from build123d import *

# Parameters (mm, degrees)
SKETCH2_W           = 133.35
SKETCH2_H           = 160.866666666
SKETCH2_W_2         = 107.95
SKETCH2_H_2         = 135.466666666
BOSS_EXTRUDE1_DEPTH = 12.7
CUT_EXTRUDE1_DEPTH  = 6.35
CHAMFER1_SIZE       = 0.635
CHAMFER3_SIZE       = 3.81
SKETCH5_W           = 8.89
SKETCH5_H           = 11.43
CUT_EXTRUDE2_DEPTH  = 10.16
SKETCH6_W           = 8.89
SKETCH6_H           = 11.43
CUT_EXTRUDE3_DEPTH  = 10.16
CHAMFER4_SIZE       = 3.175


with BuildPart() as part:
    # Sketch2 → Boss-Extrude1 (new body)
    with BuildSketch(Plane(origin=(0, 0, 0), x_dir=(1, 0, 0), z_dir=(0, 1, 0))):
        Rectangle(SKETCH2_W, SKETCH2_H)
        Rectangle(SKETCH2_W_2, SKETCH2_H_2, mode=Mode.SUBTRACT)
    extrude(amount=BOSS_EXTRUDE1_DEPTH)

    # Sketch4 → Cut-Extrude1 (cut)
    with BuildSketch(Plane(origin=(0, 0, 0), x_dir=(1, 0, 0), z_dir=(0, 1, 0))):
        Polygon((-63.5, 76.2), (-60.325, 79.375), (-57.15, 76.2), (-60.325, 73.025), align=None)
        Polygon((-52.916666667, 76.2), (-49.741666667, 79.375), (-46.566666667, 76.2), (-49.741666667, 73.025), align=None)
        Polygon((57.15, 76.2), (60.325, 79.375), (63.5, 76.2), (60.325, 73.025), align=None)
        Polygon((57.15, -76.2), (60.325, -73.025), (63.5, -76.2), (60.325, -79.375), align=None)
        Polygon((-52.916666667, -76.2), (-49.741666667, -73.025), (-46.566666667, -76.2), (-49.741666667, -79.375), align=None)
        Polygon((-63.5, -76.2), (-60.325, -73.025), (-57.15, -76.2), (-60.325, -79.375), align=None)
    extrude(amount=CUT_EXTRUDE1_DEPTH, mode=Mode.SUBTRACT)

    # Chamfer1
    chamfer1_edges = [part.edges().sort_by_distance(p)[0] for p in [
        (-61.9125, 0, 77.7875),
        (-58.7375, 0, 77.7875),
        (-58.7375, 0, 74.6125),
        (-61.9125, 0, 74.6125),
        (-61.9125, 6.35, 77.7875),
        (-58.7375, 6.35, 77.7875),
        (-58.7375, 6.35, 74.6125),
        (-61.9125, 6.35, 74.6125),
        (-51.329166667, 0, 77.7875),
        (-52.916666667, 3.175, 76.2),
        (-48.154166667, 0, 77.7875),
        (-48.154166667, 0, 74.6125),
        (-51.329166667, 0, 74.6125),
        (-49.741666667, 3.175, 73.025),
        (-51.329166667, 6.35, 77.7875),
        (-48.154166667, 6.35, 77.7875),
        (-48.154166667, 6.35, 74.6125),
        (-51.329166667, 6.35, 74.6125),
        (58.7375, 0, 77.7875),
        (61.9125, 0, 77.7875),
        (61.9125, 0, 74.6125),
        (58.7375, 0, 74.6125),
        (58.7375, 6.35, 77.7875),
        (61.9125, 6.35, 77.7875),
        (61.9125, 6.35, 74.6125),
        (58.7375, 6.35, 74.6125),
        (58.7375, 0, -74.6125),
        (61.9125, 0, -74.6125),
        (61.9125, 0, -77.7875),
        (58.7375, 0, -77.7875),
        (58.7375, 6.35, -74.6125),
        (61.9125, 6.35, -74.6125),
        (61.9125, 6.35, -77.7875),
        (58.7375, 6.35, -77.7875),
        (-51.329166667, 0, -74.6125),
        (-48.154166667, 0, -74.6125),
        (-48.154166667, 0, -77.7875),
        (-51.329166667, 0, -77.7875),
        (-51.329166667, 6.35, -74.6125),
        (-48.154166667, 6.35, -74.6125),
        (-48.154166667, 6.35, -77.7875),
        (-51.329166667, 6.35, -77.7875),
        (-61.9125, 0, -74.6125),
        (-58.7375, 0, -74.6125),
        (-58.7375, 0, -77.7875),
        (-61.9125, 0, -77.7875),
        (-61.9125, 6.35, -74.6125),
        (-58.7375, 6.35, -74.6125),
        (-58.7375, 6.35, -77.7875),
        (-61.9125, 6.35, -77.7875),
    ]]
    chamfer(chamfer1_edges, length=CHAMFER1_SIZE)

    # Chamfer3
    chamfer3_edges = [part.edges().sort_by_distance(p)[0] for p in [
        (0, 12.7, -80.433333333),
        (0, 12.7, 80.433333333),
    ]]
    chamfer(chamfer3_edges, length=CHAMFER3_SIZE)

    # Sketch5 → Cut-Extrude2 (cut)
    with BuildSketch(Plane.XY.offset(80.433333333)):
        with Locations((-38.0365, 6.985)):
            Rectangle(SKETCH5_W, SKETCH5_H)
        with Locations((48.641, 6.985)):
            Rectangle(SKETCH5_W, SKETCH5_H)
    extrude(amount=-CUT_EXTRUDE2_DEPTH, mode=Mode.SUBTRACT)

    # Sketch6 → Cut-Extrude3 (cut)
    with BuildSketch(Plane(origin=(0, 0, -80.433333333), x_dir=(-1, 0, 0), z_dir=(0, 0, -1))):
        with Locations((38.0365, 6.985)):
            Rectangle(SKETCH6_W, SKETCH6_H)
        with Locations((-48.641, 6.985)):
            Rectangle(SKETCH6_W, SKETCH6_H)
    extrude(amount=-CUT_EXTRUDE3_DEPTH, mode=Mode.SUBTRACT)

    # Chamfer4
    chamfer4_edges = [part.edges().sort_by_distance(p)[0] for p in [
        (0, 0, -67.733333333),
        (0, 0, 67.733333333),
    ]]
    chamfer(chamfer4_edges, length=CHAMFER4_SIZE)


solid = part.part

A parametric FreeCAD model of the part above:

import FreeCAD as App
import Part
import Sketcher

V = App.Vector
Q = App.Units.Quantity


def edges_at(feature, points):
    """Names of the edges that pass closest to the given points."""
    edges = feature.Shape.Edges
    near = lambda p: min(range(len(edges)), key=lambda i: edges[i].distToShape(Part.Vertex(*p))[0])
    return sorted({f"Edge{near(p) + 1}" for p in points})

doc = App.newDocument("Part")
body = doc.addObject("PartDesign::Body", "Body")

# Sketch on XZ plane
sketch1 = body.newObject("Sketcher::SketchObject", "Sketch")
sketch1.AttachmentSupport = (doc.getObject("XZ_Plane"), [""])
sketch1.MapMode = "FlatFace"
sketch1.addGeometry(Part.LineSegment(V(-67, -80, 0), V(-67, 80, 0)), False)
sketch1.addGeometry(Part.LineSegment(V(-67, 80, 0), V(67, 80, 0)), False)
sketch1.addGeometry(Part.LineSegment(V(67, 80, 0), V(67, -80, 0)), False)
sketch1.addGeometry(Part.LineSegment(V(67, -80, 0), V(-67, -80, 0)), False)
sketch1.addGeometry(Part.LineSegment(V(54, 68, 0), V(-54, 68, 0)), False)
sketch1.addGeometry(Part.LineSegment(V(-54, 68, 0), V(-54, -68, 0)), False)
sketch1.addGeometry(Part.LineSegment(V(-54, -68, 0), V(54, -68, 0)), False)
sketch1.addGeometry(Part.LineSegment(V(54, -68, 0), V(54, 68, 0)), False)
sketch1.addConstraint(Sketcher.Constraint("Coincident", 0, 2, 1, 1))
sketch1.addConstraint(Sketcher.Constraint("Coincident", 1, 2, 2, 1))
sketch1.addConstraint(Sketcher.Constraint("Coincident", 2, 2, 3, 1))
sketch1.addConstraint(Sketcher.Constraint("Coincident", 3, 2, 0, 1))
sketch1.addConstraint(Sketcher.Constraint("Coincident", 4, 2, 5, 1))
sketch1.addConstraint(Sketcher.Constraint("Coincident", 5, 2, 6, 1))
sketch1.addConstraint(Sketcher.Constraint("Coincident", 6, 2, 7, 1))
sketch1.addConstraint(Sketcher.Constraint("Coincident", 7, 2, 4, 1))
sketch1.addConstraint(Sketcher.Constraint("Vertical", 0))
sketch1.addConstraint(Sketcher.Constraint("Horizontal", 1))
sketch1.addConstraint(Sketcher.Constraint("Vertical", 2))
sketch1.addConstraint(Sketcher.Constraint("Horizontal", 3))
sketch1.addConstraint(Sketcher.Constraint("Horizontal", 4))
sketch1.addConstraint(Sketcher.Constraint("Vertical", 5))
sketch1.addConstraint(Sketcher.Constraint("Horizontal", 6))
sketch1.addConstraint(Sketcher.Constraint("Vertical", 7))
sketch1.addConstraint(Sketcher.Constraint("Symmetric", 0, 2, 2, 2, -1, 1))
sketch1.addConstraint(Sketcher.Constraint("Symmetric", 4, 2, 6, 2, -1, 1))
sketch1.addConstraint(Sketcher.Constraint("DistanceX", 1, 1, 1, 2, Q("5.25 in")))
sketch1.addConstraint(Sketcher.Constraint("DistanceX", 4, 2, 4, 1, Q("4.25 in")))
sketch1.addConstraint(Sketcher.Constraint("DistanceY", 4, 2, 0, 2, Q("0.5 in")))
sketch1.addConstraint(Sketcher.Constraint("DistanceY", 0, 1, 0, 2, 160.866667))
pad1 = body.newObject("PartDesign::Pad", "Pad")
pad1.Profile = sketch1
pad1.Length = Q("0.5 in")
pad1.Reversed = True

# Sketch on XZ plane
sketch2 = body.newObject("Sketcher::SketchObject", "Sketch001")
sketch2.AttachmentSupport = (doc.getObject("XZ_Plane"), [""])
sketch2.MapMode = "FlatFace"
sketch2.addGeometry(Part.LineSegment(V(-60.3, -79.4, 0), V(-63.5, -76.2, 0)), False)
sketch2.addGeometry(Part.LineSegment(V(-63.5, -76.2, 0), V(-60.3, -73, 0)), False)
sketch2.addGeometry(Part.LineSegment(V(-60.3, -73, 0), V(-57.1, -76.2, 0)), False)
sketch2.addGeometry(Part.LineSegment(V(-57.1, -76.2, 0), V(-60.3, -79.4, 0)), False)
sketch2.addGeometry(Part.LineSegment(V(-49.7, -79.4, 0), V(-52.9, -76.2, 0)), False)
sketch2.addGeometry(Part.LineSegment(V(-52.9, -76.2, 0), V(-49.7, -73, 0)), False)
sketch2.addGeometry(Part.LineSegment(V(-49.7, -73, 0), V(-46.6, -76.2, 0)), False)
sketch2.addGeometry(Part.LineSegment(V(-46.6, -76.2, 0), V(-49.7, -79.4, 0)), False)
sketch2.addGeometry(Part.LineSegment(V(60.3, -79.4, 0), V(57.1, -76.2, 0)), False)
sketch2.addGeometry(Part.LineSegment(V(57.1, -76.2, 0), V(60.3, -73, 0)), False)
sketch2.addGeometry(Part.LineSegment(V(60.3, -73, 0), V(63.5, -76.2, 0)), False)
sketch2.addGeometry(Part.LineSegment(V(63.5, -76.2, 0), V(60.3, -79.4, 0)), False)
sketch2.addGeometry(Part.LineSegment(V(60.3, 73, 0), V(57.1, 76.2, 0)), False)
sketch2.addGeometry(Part.LineSegment(V(57.1, 76.2, 0), V(60.3, 79.4, 0)), False)
sketch2.addGeometry(Part.LineSegment(V(60.3, 79.4, 0), V(63.5, 76.2, 0)), False)
sketch2.addGeometry(Part.LineSegment(V(63.5, 76.2, 0), V(60.3, 73, 0)), False)
sketch2.addGeometry(Part.LineSegment(V(-49.7, 73, 0), V(-52.9, 76.2, 0)), False)
sketch2.addGeometry(Part.LineSegment(V(-52.9, 76.2, 0), V(-49.7, 79.4, 0)), False)
sketch2.addGeometry(Part.LineSegment(V(-49.7, 79.4, 0), V(-46.6, 76.2, 0)), False)
sketch2.addGeometry(Part.LineSegment(V(-46.6, 76.2, 0), V(-49.7, 73, 0)), False)
sketch2.addGeometry(Part.LineSegment(V(-60.3, 73, 0), V(-63.5, 76.2, 0)), False)
sketch2.addGeometry(Part.LineSegment(V(-63.5, 76.2, 0), V(-60.3, 79.4, 0)), False)
sketch2.addGeometry(Part.LineSegment(V(-60.3, 79.4, 0), V(-57.1, 76.2, 0)), False)
sketch2.addGeometry(Part.LineSegment(V(-57.1, 76.2, 0), V(-60.3, 73, 0)), False)
sketch2.addConstraint(Sketcher.Constraint("Coincident", 0, 2, 1, 1))
sketch2.addConstraint(Sketcher.Constraint("Coincident", 1, 2, 2, 1))
sketch2.addConstraint(Sketcher.Constraint("Coincident", 2, 2, 3, 1))
sketch2.addConstraint(Sketcher.Constraint("Coincident", 3, 2, 0, 1))
sketch2.addConstraint(Sketcher.Constraint("Coincident", 4, 2, 5, 1))
sketch2.addConstraint(Sketcher.Constraint("Coincident", 5, 2, 6, 1))
sketch2.addConstraint(Sketcher.Constraint("Coincident", 6, 2, 7, 1))
sketch2.addConstraint(Sketcher.Constraint("Coincident", 7, 2, 4, 1))
sketch2.addConstraint(Sketcher.Constraint("Coincident", 8, 2, 9, 1))
sketch2.addConstraint(Sketcher.Constraint("Coincident", 9, 2, 10, 1))
sketch2.addConstraint(Sketcher.Constraint("Coincident", 10, 2, 11, 1))
sketch2.addConstraint(Sketcher.Constraint("Coincident", 11, 2, 8, 1))
sketch2.addConstraint(Sketcher.Constraint("Coincident", 12, 2, 13, 1))
sketch2.addConstraint(Sketcher.Constraint("Coincident", 13, 2, 14, 1))
sketch2.addConstraint(Sketcher.Constraint("Coincident", 14, 2, 15, 1))
sketch2.addConstraint(Sketcher.Constraint("Coincident", 15, 2, 12, 1))
sketch2.addConstraint(Sketcher.Constraint("Coincident", 16, 2, 17, 1))
sketch2.addConstraint(Sketcher.Constraint("Coincident", 17, 2, 18, 1))
sketch2.addConstraint(Sketcher.Constraint("Coincident", 18, 2, 19, 1))
sketch2.addConstraint(Sketcher.Constraint("Coincident", 19, 2, 16, 1))
sketch2.addConstraint(Sketcher.Constraint("Coincident", 20, 2, 21, 1))
sketch2.addConstraint(Sketcher.Constraint("Coincident", 21, 2, 22, 1))
sketch2.addConstraint(Sketcher.Constraint("Coincident", 22, 2, 23, 1))
sketch2.addConstraint(Sketcher.Constraint("Coincident", 23, 2, 20, 1))
sketch2.addConstraint(Sketcher.Constraint("Symmetric", 2, 2, 12, 2, -1, 1))
sketch2.addConstraint(Sketcher.Constraint("Symmetric", 3, 2, 13, 2, -1, 1))
sketch2.addConstraint(Sketcher.Constraint("Symmetric", 0, 2, 14, 2, -1, 1))
sketch2.addConstraint(Sketcher.Constraint("Symmetric", 1, 2, 15, 2, -1, 1))
sketch2.addConstraint(Sketcher.Constraint("Symmetric", 10, 2, 20, 2, -1, 1))
sketch2.addConstraint(Sketcher.Constraint("Symmetric", 11, 2, 21, 2, -1, 1))
sketch2.addConstraint(Sketcher.Constraint("Symmetric", 8, 2, 22, 2, -1, 1))
sketch2.addConstraint(Sketcher.Constraint("Symmetric", 9, 2, 23, 2, -1, 1))
sketch2.addConstraint(Sketcher.Constraint("Symmetric", 2, 2, 8, 2, -2))
sketch2.addConstraint(Sketcher.Constraint("Symmetric", 1, 2, 9, 2, -2))
sketch2.addConstraint(Sketcher.Constraint("Symmetric", 0, 2, 10, 2, -2))
sketch2.addConstraint(Sketcher.Constraint("Symmetric", 3, 2, 11, 2, -2))
sketch2.addConstraint(Sketcher.Constraint("Symmetric", 4, 2, 16, 2, -1))
sketch2.addConstraint(Sketcher.Constraint("Symmetric", 7, 2, 17, 2, -1))
sketch2.addConstraint(Sketcher.Constraint("Symmetric", 6, 2, 18, 2, -1))
sketch2.addConstraint(Sketcher.Constraint("Symmetric", 5, 2, 19, 2, -1))
sketch2.addConstraint(Sketcher.Constraint("Perpendicular", 0, 1))
sketch2.addConstraint(Sketcher.Constraint("Perpendicular", 1, 2))
sketch2.addConstraint(Sketcher.Constraint("Perpendicular", 2, 3))
sketch2.addConstraint(Sketcher.Constraint("Perpendicular", 3, 4))
sketch2.addConstraint(Sketcher.Constraint("Perpendicular", 4, 5))
sketch2.addConstraint(Sketcher.Constraint("Perpendicular", 5, 6))
sketch2.addConstraint(Sketcher.Constraint("Perpendicular", 6, 7))
sketch2.addConstraint(Sketcher.Constraint("Perpendicular", 7, 8))
sketch2.addConstraint(Sketcher.Constraint("Horizontal", 0, 2, 2, 2))
sketch2.addConstraint(Sketcher.Constraint("Horizontal", 2, 2, 4, 2))
sketch2.addConstraint(Sketcher.Constraint("Horizontal", 1, 2, 5, 2))
sketch2.addConstraint(Sketcher.Constraint("Horizontal", 4, 2, 6, 2))
sketch2.addConstraint(Sketcher.Constraint("DistanceY", 0, 2, -1, 1, Q("3 in")))
sketch2.addConstraint(Sketcher.Constraint("DistanceX", 0, 2, -1, 1, Q("2.5 in")))
sketch2.addConstraint(Sketcher.Constraint("DistanceX", 2, 2, 8, 2, Q("4.5 in")))
sketch2.addConstraint(Sketcher.Constraint("DistanceX", 4, 2, -1, 1, 52.916667))
pocket1 = body.newObject("PartDesign::Pocket", "Pocket")
pocket1.Profile = sketch2
pocket1.Length = Q("0.25 in")
doc.recompute()

chamfer = body.newObject("PartDesign::Chamfer", "Chamfer")
chamfer.Base = (pocket1, edges_at(pocket1, [
    (-61.913, 0, 77.787),
    (-58.737, 0, 77.787),
    (-58.737, 0, 74.612),
    (-61.913, 0, 74.612),
    (-61.913, 6.35, 77.787),
    (-58.737, 6.35, 77.787),
    (-58.737, 6.35, 74.612),
    (-61.913, 6.35, 74.612),
    (-51.329, 0, 77.787),
    (-52.917, 3.175, 76.2),
    (-48.154, 0, 77.787),
    (-48.154, 0, 74.612),
    (-51.329, 0, 74.612),
    (-49.742, 3.175, 73.025),
    (-51.329, 6.35, 77.787),
    (-48.154, 6.35, 77.787),
    (-48.154, 6.35, 74.612),
    (-51.329, 6.35, 74.612),
    (58.737, 0, 77.787),
    (61.913, 0, 77.787),
    (61.913, 0, 74.612),
    (58.737, 0, 74.612),
    (58.737, 6.35, 77.787),
    (61.913, 6.35, 77.787),
    (61.913, 6.35, 74.612),
    (58.737, 6.35, 74.612),
    (58.737, 0, -74.612),
    (61.913, 0, -74.612),
    (61.913, 0, -77.787),
    (58.737, 0, -77.787),
    (58.737, 6.35, -74.612),
    (61.913, 6.35, -74.612),
    (61.913, 6.35, -77.787),
    (58.737, 6.35, -77.787),
    (-51.329, 0, -74.612),
    (-48.154, 0, -74.612),
    (-48.154, 0, -77.787),
    (-51.329, 0, -77.787),
    (-51.329, 6.35, -74.612),
    (-48.154, 6.35, -74.612),
    (-48.154, 6.35, -77.787),
    (-51.329, 6.35, -77.787),
    (-61.913, 0, -74.612),
    (-58.737, 0, -74.612),
    (-58.737, 0, -77.787),
    (-61.913, 0, -77.787),
    (-61.913, 6.35, -74.612),
    (-58.737, 6.35, -74.612),
    (-58.737, 6.35, -77.787),
    (-61.913, 6.35, -77.787),
]))
chamfer.Size = Q("0.025 in")
doc.recompute()

chamfer2 = body.newObject("PartDesign::Chamfer", "Chamfer001")
chamfer2.Base = (chamfer, edges_at(chamfer, [(0, 12.7, -80.433), (0, 12.7, 80.433)]))
chamfer2.Size = Q("0.15 in")

# Sketch on XY plane
sketch3 = body.newObject("Sketcher::SketchObject", "Sketch002")
sketch3.AttachmentSupport = (doc.getObject("XY_Plane"), [""])
sketch3.MapMode = "FlatFace"
sketch3.AttachmentOffset = App.Placement(V(0, 0, 80.433333), App.Rotation())
sketch3.addGeometry(Part.LineSegment(V(-42, 13, 0), V(-42, 1, 0)), False)
sketch3.addGeometry(Part.LineSegment(V(-42, 1, 0), V(-34, 1, 0)), False)
sketch3.addGeometry(Part.LineSegment(V(-34, 1, 0), V(-34, 13, 0)), False)
sketch3.addGeometry(Part.LineSegment(V(-34, 13, 0), V(-42, 13, 0)), False)
sketch3.addGeometry(Part.LineSegment(V(44, 13, 0), V(44, 1, 0)), False)
sketch3.addGeometry(Part.LineSegment(V(44, 1, 0), V(53, 1, 0)), False)
sketch3.addGeometry(Part.LineSegment(V(53, 1, 0), V(53, 13, 0)), False)
sketch3.addGeometry(Part.LineSegment(V(53, 13, 0), V(44, 13, 0)), False)
sketch3.addConstraint(Sketcher.Constraint("Coincident", 0, 2, 1, 1))
sketch3.addConstraint(Sketcher.Constraint("Coincident", 1, 2, 2, 1))
sketch3.addConstraint(Sketcher.Constraint("Coincident", 2, 2, 3, 1))
sketch3.addConstraint(Sketcher.Constraint("Coincident", 3, 2, 0, 1))
sketch3.addConstraint(Sketcher.Constraint("Coincident", 4, 2, 5, 1))
sketch3.addConstraint(Sketcher.Constraint("Coincident", 5, 2, 6, 1))
sketch3.addConstraint(Sketcher.Constraint("Coincident", 6, 2, 7, 1))
sketch3.addConstraint(Sketcher.Constraint("Coincident", 7, 2, 4, 1))
sketch3.addConstraint(Sketcher.Constraint("Vertical", 0))
sketch3.addConstraint(Sketcher.Constraint("Horizontal", 1))
sketch3.addConstraint(Sketcher.Constraint("Vertical", 2))
sketch3.addConstraint(Sketcher.Constraint("Horizontal", 3))
sketch3.addConstraint(Sketcher.Constraint("Vertical", 4))
sketch3.addConstraint(Sketcher.Constraint("Horizontal", 5))
sketch3.addConstraint(Sketcher.Constraint("Vertical", 6))
sketch3.addConstraint(Sketcher.Constraint("Horizontal", 7))
sketch3.addConstraint(Sketcher.Constraint("Horizontal", 1, 2, 4, 2))
sketch3.addConstraint(Sketcher.Constraint("Horizontal", 3, 2, 6, 2))
sketch3.addConstraint(Sketcher.Constraint("Equal", 3, 5))
sketch3.addConstraint(Sketcher.Constraint("DistanceX", 1, 1, 1, 2, Q("0.35 in")))
sketch3.addConstraint(Sketcher.Constraint("DistanceY", 0, 2, 0, 1, Q("0.45 in")))
sketch3.addConstraint(Sketcher.Constraint("DistanceY", -1, 1, 2, 2, Q("0.5 in")))
sketch3.addConstraint(Sketcher.Constraint("DistanceX", -1, 1, 4, 2, Q("1.74 in")))
sketch3.addConstraint(Sketcher.Constraint("DistanceX", 1, 2, 4, 2, Q("3.0625 in")))
pocket2 = body.newObject("PartDesign::Pocket", "Pocket001")
pocket2.Profile = sketch3
pocket2.Length = Q("0.4 in")

# Sketch on XY plane
sketch4 = body.newObject("Sketcher::SketchObject", "Sketch003")
sketch4.AttachmentSupport = (doc.getObject("XY_Plane"), [""])
sketch4.MapMode = "FlatFace"
sketch4.AttachmentOffset = App.Placement(V(0, 0, -80.433333), App.Rotation())
sketch4.addGeometry(Part.LineSegment(V(-34, 13, 0), V(-34, 1, 0)), False)
sketch4.addGeometry(Part.LineSegment(V(-34, 1, 0), V(-42, 1, 0)), False)
sketch4.addGeometry(Part.LineSegment(V(-42, 1, 0), V(-42, 13, 0)), False)
sketch4.addGeometry(Part.LineSegment(V(-42, 13, 0), V(-34, 13, 0)), False)
sketch4.addGeometry(Part.LineSegment(V(53, 13, 0), V(53, 1, 0)), False)
sketch4.addGeometry(Part.LineSegment(V(53, 1, 0), V(44, 1, 0)), False)
sketch4.addGeometry(Part.LineSegment(V(44, 1, 0), V(44, 13, 0)), False)
sketch4.addGeometry(Part.LineSegment(V(44, 13, 0), V(53, 13, 0)), False)
sketch4.addConstraint(Sketcher.Constraint("Coincident", 0, 2, 1, 1))
sketch4.addConstraint(Sketcher.Constraint("Coincident", 1, 2, 2, 1))
sketch4.addConstraint(Sketcher.Constraint("Coincident", 2, 2, 3, 1))
sketch4.addConstraint(Sketcher.Constraint("Coincident", 3, 2, 0, 1))
sketch4.addConstraint(Sketcher.Constraint("Coincident", 4, 2, 5, 1))
sketch4.addConstraint(Sketcher.Constraint("Coincident", 5, 2, 6, 1))
sketch4.addConstraint(Sketcher.Constraint("Coincident", 6, 2, 7, 1))
sketch4.addConstraint(Sketcher.Constraint("Coincident", 7, 2, 4, 1))
sketch4.addConstraint(Sketcher.Constraint("Vertical", 0))
sketch4.addConstraint(Sketcher.Constraint("Horizontal", 1))
sketch4.addConstraint(Sketcher.Constraint("Vertical", 2))
sketch4.addConstraint(Sketcher.Constraint("Horizontal", 3))
sketch4.addConstraint(Sketcher.Constraint("Vertical", 4))
sketch4.addConstraint(Sketcher.Constraint("Horizontal", 5))
sketch4.addConstraint(Sketcher.Constraint("Vertical", 6))
sketch4.addConstraint(Sketcher.Constraint("Horizontal", 7))
sketch4.addConstraint(Sketcher.Constraint("Horizontal", 1, 2, 4, 2))
sketch4.addConstraint(Sketcher.Constraint("Horizontal", 3, 2, 6, 2))
sketch4.addConstraint(Sketcher.Constraint("Equal", 3, 5))
sketch4.addConstraint(Sketcher.Constraint("DistanceX", 1, 2, 1, 1, Q("0.35 in")))
sketch4.addConstraint(Sketcher.Constraint("DistanceY", 0, 2, 0, 1, Q("0.45 in")))
sketch4.addConstraint(Sketcher.Constraint("DistanceY", -1, 1, 2, 2, Q("0.5 in")))
sketch4.addConstraint(Sketcher.Constraint("DistanceX", -1, 1, 4, 2, Q("2.09 in")))
sketch4.addConstraint(Sketcher.Constraint("DistanceX", 0, 2, 5, 2, Q("3.0625 in")))
pocket3 = body.newObject("PartDesign::Pocket", "Pocket002")
pocket3.Profile = sketch4
pocket3.Length = Q("0.4 in")
pocket3.Reversed = True
doc.recompute()

chamfer3 = body.newObject("PartDesign::Chamfer", "Chamfer002")
chamfer3.Base = (pocket3, edges_at(pocket3, [(0, 0, -67.733), (0, 0, 67.733)]))
chamfer3.Size = Q("0.125 in")

doc.recompute()
